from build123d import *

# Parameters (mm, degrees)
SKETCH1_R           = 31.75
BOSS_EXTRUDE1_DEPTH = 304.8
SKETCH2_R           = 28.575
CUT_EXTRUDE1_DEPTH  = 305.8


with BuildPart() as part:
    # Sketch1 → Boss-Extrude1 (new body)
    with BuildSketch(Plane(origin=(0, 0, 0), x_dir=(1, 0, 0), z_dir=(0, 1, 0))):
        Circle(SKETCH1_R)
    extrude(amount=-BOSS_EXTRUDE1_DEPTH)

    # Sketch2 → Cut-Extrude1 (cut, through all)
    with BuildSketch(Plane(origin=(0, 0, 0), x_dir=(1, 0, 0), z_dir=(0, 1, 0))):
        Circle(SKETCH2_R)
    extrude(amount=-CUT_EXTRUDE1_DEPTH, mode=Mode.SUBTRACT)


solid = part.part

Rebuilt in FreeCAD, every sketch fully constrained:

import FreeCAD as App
import Part
import Sketcher

V = App.Vector
Q = App.Units.Quantity

doc = App.newDocument("Part")
params = doc.addObject("Spreadsheet::Sheet", "Params")
for row, (alias, value) in enumerate([
    ("sketch1_diameter", "2.5 in"),
    ("pad1_length", "12 in"),
    ("sketch2_diameter", "2.25 in"),
], start=1):
    params.set(f"A{row}", alias)
    params.set(f"B{row}", "=" + value)
    params.setAlias(f"B{row}", alias)

body = doc.addObject("PartDesign::Body", "Body")

sketch1 = doc.addObject("Sketcher::SketchObject", "Sketch")
body.addObject(sketch1)
sketch1.AttachmentSupport = (doc.XZ_Plane, [""])
sketch1.MapMode = "FlatFace"
sketch1.addGeometry(Part.Circle(V(0, 0, 0), V(0, 0, 1), 31.75), False)
sketch1.addConstraint(Sketcher.Constraint("Coincident", 0, 3, -1, 1))
sketch1.addConstraint(Sketcher.Constraint("Diameter", 0, Q("2.5 in")))
sketch1.setExpression("Constraints[1]", "Params.sketch1_diameter")
pad1 = doc.addObject("PartDesign::Pad", "Pad")
body.addObject(pad1)
pad1.Profile = sketch1
pad1.setExpression("Length", "Params.pad1_length")

sketch2 = doc.addObject("Sketcher::SketchObject", "Sketch001")
body.addObject(sketch2)
sketch2.AttachmentSupport = (doc.XZ_Plane, [""])
sketch2.MapMode = "FlatFace"
sketch2.addGeometry(Part.Circle(V(0, 0, 0), V(0, 0, 1), 28.575), False)
sketch2.addConstraint(Sketcher.Constraint("Coincident", 0, 3, -1, 1))
sketch2.addConstraint(Sketcher.Constraint("Diameter", 0, Q("2.25 in")))
sketch2.setExpression("Constraints[1]", "Params.sketch2_diameter")
pocket1 = doc.addObject("PartDesign::Pocket", "Pocket")
body.addObject(pocket1)
pocket1.Profile = sketch2
pocket1.Type = "ThroughAll"
pocket1.Reversed = True

doc.recompute()
